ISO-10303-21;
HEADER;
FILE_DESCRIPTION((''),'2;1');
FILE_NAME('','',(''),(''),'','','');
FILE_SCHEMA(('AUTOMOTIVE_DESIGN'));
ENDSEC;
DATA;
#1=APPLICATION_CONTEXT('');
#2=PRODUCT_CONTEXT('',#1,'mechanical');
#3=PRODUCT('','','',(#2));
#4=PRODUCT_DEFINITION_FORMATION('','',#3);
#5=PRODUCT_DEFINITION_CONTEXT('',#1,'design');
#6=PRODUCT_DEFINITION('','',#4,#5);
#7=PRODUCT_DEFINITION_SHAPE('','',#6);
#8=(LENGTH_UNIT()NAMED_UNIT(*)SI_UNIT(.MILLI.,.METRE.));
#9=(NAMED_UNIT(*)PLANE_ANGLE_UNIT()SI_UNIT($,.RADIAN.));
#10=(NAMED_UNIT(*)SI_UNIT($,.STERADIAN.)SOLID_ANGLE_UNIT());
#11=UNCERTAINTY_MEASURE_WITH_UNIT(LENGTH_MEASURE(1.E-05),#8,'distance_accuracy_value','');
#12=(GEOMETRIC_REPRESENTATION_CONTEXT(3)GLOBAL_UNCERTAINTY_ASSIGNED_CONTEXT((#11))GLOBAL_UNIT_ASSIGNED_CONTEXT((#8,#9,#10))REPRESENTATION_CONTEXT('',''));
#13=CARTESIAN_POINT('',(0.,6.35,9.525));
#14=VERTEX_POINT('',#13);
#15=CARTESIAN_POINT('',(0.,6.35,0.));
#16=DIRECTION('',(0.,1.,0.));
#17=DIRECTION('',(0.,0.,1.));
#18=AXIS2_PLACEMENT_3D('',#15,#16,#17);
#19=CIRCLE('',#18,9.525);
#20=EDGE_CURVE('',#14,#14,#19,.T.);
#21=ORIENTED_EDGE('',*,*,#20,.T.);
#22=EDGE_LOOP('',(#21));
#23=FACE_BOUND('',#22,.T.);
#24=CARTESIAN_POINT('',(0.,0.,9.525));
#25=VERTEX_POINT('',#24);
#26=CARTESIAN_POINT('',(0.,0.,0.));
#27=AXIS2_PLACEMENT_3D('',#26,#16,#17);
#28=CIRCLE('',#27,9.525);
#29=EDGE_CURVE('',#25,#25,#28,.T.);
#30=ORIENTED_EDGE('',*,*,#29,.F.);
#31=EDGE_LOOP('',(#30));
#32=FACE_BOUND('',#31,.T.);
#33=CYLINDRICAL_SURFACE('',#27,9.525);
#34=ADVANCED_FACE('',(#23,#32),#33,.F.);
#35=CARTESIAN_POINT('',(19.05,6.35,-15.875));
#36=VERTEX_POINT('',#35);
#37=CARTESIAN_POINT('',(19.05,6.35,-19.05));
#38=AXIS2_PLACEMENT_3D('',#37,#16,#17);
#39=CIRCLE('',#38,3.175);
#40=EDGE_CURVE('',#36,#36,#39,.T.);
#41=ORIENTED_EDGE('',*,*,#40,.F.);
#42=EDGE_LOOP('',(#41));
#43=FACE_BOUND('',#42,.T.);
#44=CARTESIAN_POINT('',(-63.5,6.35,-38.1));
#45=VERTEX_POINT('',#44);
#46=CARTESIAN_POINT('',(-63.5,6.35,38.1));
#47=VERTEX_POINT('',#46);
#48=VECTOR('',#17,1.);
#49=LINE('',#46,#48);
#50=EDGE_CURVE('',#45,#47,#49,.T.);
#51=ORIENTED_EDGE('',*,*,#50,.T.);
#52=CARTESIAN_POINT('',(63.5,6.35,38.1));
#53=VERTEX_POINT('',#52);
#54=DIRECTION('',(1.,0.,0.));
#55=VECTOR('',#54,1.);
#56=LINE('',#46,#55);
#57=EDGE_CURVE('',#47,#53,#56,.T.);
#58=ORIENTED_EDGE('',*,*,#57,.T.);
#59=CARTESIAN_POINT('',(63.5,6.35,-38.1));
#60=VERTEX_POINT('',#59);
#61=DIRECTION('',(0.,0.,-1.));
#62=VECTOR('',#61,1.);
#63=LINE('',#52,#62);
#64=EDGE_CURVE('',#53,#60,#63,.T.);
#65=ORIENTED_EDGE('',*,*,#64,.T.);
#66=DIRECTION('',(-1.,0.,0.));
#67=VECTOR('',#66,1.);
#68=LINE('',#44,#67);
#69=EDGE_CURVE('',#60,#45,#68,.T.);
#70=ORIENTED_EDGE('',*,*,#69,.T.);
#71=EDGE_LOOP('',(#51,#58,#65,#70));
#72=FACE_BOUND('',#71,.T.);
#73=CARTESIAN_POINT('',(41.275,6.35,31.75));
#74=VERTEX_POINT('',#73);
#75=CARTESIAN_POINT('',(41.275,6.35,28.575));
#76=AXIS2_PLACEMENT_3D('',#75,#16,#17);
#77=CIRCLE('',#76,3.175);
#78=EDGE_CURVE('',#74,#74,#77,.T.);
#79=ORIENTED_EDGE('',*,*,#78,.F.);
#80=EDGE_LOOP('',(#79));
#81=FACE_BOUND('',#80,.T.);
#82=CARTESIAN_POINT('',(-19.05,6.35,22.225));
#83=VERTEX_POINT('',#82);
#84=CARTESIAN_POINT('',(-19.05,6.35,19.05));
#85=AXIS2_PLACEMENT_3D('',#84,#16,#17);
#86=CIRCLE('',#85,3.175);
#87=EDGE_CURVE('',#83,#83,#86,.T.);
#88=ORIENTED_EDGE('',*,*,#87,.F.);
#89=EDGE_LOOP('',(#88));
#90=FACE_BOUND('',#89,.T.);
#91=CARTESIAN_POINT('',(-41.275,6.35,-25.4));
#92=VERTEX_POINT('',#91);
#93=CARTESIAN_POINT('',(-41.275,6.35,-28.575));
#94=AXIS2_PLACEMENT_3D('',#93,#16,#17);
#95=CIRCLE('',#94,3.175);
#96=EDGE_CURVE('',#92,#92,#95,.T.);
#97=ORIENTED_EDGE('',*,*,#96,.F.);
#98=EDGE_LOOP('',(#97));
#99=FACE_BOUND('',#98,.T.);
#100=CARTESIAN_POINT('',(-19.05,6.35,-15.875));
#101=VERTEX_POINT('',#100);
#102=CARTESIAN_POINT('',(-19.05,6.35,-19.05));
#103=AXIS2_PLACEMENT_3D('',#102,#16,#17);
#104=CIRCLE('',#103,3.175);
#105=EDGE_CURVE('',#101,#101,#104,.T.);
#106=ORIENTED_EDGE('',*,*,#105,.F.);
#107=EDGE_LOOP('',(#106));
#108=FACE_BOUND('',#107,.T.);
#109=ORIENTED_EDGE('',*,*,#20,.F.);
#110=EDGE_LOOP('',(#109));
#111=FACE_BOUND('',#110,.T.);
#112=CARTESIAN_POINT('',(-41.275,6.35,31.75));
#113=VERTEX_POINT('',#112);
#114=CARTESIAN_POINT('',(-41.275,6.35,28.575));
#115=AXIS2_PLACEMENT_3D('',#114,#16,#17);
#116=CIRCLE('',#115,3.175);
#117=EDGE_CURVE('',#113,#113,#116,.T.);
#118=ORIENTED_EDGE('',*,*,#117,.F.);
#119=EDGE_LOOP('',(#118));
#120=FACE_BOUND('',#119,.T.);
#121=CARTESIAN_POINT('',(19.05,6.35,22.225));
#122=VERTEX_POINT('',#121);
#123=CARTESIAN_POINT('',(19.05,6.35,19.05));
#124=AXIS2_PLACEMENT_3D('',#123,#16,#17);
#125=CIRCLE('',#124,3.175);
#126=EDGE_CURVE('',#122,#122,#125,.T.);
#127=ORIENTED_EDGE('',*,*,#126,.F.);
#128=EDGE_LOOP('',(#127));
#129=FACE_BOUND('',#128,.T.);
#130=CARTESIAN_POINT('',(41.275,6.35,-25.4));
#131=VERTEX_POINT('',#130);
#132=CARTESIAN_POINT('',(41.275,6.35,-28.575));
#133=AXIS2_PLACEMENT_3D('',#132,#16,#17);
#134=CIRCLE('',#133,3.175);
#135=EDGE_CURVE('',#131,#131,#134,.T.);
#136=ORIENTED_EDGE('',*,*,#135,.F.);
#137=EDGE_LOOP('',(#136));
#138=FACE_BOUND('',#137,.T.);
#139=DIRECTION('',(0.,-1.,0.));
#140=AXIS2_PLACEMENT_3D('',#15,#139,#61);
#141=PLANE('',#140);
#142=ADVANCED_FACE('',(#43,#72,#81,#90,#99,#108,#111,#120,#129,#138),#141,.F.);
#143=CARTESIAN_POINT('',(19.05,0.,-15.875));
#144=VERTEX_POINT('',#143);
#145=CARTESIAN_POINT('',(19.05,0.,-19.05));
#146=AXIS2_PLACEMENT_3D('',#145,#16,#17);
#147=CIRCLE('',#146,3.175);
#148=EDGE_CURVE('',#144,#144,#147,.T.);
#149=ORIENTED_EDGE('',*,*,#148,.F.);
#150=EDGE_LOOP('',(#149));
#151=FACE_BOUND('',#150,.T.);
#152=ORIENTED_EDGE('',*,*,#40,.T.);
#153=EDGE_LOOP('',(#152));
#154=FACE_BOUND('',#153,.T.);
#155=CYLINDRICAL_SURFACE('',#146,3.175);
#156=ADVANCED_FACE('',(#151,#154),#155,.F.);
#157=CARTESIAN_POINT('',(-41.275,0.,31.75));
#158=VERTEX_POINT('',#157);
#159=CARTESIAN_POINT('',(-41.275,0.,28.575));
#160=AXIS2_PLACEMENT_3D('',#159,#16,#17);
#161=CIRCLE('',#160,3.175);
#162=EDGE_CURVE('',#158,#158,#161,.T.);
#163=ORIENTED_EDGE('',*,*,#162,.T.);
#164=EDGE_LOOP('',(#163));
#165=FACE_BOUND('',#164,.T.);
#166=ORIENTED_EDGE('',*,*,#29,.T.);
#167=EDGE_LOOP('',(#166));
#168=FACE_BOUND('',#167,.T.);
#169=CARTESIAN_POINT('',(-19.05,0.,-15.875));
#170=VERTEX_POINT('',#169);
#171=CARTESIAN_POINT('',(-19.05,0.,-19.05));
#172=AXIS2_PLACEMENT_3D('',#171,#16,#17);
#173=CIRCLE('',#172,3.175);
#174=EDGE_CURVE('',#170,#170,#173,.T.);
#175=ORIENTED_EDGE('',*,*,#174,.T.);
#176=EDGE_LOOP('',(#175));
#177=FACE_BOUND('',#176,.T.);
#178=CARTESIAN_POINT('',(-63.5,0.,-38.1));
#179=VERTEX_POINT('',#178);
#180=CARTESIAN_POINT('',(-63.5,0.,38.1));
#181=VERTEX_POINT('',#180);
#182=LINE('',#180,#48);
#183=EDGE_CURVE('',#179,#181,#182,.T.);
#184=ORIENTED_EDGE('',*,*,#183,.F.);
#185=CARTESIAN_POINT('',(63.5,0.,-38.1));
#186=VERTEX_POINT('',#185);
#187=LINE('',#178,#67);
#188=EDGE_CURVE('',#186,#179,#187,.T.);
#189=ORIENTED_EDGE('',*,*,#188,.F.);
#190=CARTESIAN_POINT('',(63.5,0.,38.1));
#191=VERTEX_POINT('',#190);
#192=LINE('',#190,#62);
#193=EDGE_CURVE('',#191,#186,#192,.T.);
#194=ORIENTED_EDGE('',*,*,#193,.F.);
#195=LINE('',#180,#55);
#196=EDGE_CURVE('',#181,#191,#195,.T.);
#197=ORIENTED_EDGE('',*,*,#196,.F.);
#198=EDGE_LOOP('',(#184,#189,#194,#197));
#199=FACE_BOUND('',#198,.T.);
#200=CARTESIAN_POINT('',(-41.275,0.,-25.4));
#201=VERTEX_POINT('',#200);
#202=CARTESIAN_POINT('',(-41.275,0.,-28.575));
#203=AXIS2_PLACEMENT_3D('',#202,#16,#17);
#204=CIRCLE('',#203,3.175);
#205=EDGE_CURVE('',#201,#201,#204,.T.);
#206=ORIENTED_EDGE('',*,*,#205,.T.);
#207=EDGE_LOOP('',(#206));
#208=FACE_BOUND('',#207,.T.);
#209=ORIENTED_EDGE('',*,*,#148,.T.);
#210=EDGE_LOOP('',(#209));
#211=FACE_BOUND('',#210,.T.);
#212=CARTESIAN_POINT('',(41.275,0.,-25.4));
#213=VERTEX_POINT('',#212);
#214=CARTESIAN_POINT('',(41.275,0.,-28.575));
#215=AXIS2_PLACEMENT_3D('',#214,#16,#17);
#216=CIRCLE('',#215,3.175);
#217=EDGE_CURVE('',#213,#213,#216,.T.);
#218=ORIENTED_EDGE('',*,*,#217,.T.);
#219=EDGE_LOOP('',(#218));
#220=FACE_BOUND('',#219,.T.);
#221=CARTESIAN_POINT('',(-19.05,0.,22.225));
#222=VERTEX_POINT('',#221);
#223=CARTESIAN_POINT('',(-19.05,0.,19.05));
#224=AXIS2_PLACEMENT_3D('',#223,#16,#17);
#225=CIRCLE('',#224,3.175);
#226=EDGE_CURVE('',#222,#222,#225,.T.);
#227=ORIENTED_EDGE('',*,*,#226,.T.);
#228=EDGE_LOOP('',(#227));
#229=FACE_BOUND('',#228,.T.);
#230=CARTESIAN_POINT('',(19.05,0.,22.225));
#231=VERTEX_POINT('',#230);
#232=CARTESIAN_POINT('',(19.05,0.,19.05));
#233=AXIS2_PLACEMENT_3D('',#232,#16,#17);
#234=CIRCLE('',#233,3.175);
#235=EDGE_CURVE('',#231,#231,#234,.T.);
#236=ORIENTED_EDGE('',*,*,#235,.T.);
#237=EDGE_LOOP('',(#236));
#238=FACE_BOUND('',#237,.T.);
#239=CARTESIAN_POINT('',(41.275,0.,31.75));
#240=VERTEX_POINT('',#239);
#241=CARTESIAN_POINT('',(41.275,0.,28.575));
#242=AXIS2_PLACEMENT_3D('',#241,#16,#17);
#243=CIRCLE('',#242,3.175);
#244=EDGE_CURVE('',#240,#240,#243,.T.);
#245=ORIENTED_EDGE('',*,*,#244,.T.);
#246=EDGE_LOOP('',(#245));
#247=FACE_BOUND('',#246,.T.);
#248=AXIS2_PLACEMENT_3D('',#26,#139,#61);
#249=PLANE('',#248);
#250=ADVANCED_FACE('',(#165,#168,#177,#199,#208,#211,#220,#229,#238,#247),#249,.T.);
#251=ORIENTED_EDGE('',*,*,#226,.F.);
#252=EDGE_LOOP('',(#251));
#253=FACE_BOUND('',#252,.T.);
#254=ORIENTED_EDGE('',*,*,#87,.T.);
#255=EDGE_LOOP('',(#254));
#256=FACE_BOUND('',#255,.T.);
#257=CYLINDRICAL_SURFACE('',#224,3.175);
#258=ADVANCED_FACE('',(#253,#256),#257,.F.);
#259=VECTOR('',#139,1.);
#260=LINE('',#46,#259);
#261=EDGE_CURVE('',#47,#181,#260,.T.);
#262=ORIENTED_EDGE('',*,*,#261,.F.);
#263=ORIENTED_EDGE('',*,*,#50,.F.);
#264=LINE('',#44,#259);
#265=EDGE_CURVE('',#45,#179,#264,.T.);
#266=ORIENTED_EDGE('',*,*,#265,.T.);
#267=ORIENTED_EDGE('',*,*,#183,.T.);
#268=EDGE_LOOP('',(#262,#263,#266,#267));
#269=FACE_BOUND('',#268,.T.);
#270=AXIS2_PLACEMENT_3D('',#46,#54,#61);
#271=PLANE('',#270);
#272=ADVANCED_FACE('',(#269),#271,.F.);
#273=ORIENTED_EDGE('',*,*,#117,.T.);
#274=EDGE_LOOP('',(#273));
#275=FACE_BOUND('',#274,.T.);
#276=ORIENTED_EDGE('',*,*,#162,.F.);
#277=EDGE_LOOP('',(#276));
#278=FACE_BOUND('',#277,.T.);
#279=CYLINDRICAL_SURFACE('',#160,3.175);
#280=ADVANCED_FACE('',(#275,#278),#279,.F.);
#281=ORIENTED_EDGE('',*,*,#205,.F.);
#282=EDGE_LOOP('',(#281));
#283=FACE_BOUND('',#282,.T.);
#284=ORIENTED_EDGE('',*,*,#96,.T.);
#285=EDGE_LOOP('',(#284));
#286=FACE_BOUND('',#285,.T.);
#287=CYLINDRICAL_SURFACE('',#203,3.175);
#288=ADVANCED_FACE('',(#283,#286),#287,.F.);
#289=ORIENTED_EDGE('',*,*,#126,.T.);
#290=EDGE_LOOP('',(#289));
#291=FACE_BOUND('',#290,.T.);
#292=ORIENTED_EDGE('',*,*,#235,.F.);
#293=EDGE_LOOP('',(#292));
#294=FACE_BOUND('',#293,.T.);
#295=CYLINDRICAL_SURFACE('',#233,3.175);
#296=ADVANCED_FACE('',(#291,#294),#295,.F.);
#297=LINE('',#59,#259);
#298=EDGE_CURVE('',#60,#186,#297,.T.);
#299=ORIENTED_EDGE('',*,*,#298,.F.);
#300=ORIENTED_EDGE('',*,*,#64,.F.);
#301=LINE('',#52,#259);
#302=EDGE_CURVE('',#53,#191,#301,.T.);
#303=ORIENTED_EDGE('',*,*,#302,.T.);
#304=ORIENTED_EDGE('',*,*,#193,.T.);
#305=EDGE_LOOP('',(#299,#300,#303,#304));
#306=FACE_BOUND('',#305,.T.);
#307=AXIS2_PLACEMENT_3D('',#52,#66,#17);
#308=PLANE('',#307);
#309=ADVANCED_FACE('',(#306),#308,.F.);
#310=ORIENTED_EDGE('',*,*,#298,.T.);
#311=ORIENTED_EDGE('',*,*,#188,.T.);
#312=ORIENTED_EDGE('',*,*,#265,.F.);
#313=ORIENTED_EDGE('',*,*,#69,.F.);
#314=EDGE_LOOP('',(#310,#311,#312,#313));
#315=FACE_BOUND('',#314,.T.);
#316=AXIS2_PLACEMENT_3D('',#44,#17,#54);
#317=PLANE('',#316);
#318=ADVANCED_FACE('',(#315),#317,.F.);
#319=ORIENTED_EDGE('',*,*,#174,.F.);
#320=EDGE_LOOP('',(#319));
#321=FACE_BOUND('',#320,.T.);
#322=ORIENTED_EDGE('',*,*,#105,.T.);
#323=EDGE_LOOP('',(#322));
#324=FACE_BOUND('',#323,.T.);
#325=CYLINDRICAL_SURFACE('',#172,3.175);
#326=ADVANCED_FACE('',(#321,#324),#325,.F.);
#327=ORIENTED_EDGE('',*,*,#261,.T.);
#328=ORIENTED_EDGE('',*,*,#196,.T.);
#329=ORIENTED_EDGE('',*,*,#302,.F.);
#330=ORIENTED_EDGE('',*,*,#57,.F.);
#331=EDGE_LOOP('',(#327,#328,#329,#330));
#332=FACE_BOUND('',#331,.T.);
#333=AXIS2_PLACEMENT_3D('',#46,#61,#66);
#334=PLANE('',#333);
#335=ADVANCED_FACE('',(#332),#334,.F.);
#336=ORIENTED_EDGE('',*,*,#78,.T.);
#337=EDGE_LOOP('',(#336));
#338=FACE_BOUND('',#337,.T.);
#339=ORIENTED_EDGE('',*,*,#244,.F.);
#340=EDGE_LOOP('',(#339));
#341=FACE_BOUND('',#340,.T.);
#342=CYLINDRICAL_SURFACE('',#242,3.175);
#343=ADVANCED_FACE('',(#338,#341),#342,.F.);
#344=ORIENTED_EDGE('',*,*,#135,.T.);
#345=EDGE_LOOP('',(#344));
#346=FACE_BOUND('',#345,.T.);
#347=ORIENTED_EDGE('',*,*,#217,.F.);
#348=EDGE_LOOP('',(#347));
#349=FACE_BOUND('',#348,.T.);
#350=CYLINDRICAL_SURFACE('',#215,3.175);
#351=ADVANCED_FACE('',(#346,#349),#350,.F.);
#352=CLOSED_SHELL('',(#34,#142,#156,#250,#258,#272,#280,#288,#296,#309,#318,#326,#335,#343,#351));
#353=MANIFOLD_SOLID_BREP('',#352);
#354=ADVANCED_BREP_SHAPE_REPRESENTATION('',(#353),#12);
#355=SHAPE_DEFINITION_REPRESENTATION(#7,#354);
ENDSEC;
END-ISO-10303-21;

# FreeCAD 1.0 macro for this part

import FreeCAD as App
import Part
import Sketcher
from FreeCAD import Vector
Q = App.Units.Quantity


def add_polygon(sketch, points):
    """Adds a closed chain of lines whose ends are joined by coincident constraints."""
    first, n = sketch.GeometryCount, len(points)
    for a, b in zip(points, points[1:] + points[:1]):
        sketch.addGeometry(Part.LineSegment(App.Vector(*a, 0), App.Vector(*b, 0)), False)
    for i in range(n):
        sketch.addConstraint(Sketcher.Constraint("Coincident", first + i, 2, first + (i + 1) % n, 1))

doc = App.newDocument("Part")
params = doc.addObject("Spreadsheet::Sheet", "Params")
for row, (alias, value) in enumerate([
    ("sketch1_width", "5 in"),
    ("sketch1_height", "3 in"),
    ("pad1_length", "0.25 in"),
    ("sketch2_diameter", "0.25 in"),
    ("sketch2_diameter2", "0.75 in"),
], start=1):
    params.set(f"A{row}", alias)
    params.set(f"B{row}", "=" + value)
    params.setAlias(f"B{row}", alias)

body = doc.addObject("PartDesign::Body", "Body")

# Sketch on XZ plane
sketch1 = body.newObject("Sketcher::SketchObject", "Sketch")
sketch1.AttachmentSupport = (doc.getObject("XZ_Plane"), [""])
sketch1.MapMode = "FlatFace"
add_polygon(sketch1, [(-64, -38), (-64, 38), (64, 38), (64, -38)])  # lines 0-3
sketch1.addConstraint(Sketcher.Constraint("Vertical", 0))
sketch1.addConstraint(Sketcher.Constraint("Horizontal", 1))
sketch1.addConstraint(Sketcher.Constraint("Vertical", 2))
sketch1.addConstraint(Sketcher.Constraint("Horizontal", 3))
sketch1.addConstraint(Sketcher.Constraint("Symmetric", 0, 2, 2, 2, -1, 1))
sketch1.addConstraint(Sketcher.Constraint("DistanceX", 1, 1, 1, 2, Q("5 in")))
sketch1.addConstraint(Sketcher.Constraint("DistanceY", 0, 1, 0, 2, Q("3 in")))
sketch1.setExpression("Constraints[9]", "Params.sketch1_width")
sketch1.setExpression("Constraints[10]", "Params.sketch1_height")
pad1 = body.newObject("PartDesign::Pad", "Pad")
pad1.Profile = sketch1
pad1.setExpression("Length", "Params.pad1_length")
pad1.Reversed = True

# Sketch on XZ plane
sketch2 = body.newObject("Sketcher::SketchObject", "Sketch001")
sketch2.AttachmentSupport = (doc.getObject("XZ_Plane"), [""])
sketch2.MapMode = "FlatFace"
sketch2.AttachmentOffset = App.Placement(Vector(0, 0, -0.25 * 25.4), App.Rotation())
sketch2.addGeometry(Part.Circle(Vector(-41.3, -28.6, 0), Vector(0, 0, 1), 3.2), False)
sketch2.addGeometry(Part.Circle(Vector(41.3, -28.6, 0), Vector(0, 0, 1), 3.2), False)
sketch2.addGeometry(Part.Circle(Vector(41.3, 28.6, 0), Vector(0, 0, 1), 3.2), False)
sketch2.addGeometry(Part.Circle(Vector(-41.3, 28.6, 0), Vector(0, 0, 1), 3.2), False)
sketch2.addGeometry(Part.Circle(Vector(-19.1, -19.1, 0), Vector(0, 0, 1), 3.2), False)
sketch2.addGeometry(Part.Circle(Vector(19.1, -19.1, 0), Vector(0, 0, 1), 3.2), False)
sketch2.addGeometry(Part.Circle(Vector(19.1, 19.1, 0), Vector(0, 0, 1), 3.2), False)
sketch2.addGeometry(Part.Circle(Vector(-19.1, 19.1, 0), Vector(0, 0, 1), 3.2), False)
sketch2.addGeometry(Part.Circle(Vector(0, 0, 0), Vector(0, 0, 1), 9.5), False)
sketch2.addConstraint(Sketcher.Constraint("Coincident", 8, 3, -1, 1))
sketch2.addConstraint(Sketcher.Constraint("Equal", 0, 1))
sketch2.addConstraint(Sketcher.Constraint("Equal", 1, 2))
sketch2.addConstraint(Sketcher.Constraint("Equal", 2, 3))
sketch2.addConstraint(Sketcher.Constraint("Equal", 3, 4))
sketch2.addConstraint(Sketcher.Constraint("Equal", 4, 5))
sketch2.addConstraint(Sketcher.Constraint("Equal", 5, 6))
sketch2.addConstraint(Sketcher.Constraint("Equal", 6, 7))
sketch2.addConstraint(Sketcher.Constraint("Symmetric", 0, 3, 2, 3, -1, 1))
sketch2.addConstraint(Sketcher.Constraint("Symmetric", 1, 3, 3, 3, -1, 1))
sketch2.addConstraint(Sketcher.Constraint("Symmetric", 4, 3, 6, 3, -1, 1))
sketch2.addConstraint(Sketcher.Constraint("Symmetric", 5, 3, 7, 3, -1, 1))
sketch2.addConstraint(Sketcher.Constraint("Symmetric", 0, 3, 1, 3, -2))
sketch2.addConstraint(Sketcher.Constraint("Symmetric", 4, 3, 5, 3, -2))
sketch2.addConstraint(Sketcher.Constraint("Diameter", 0, Q("0.25 in")))
sketch2.addConstraint(Sketcher.Constraint("Diameter", 8, Q("0.75 in")))
sketch2.addConstraint(Sketcher.Constraint("DistanceX", 4, 3, 5, 3, Q("1.5 in")))
sketch2.addConstraint(Sketcher.Constraint("DistanceY", 5, 3, 6, 3, Q("1.5 in")))
sketch2.addConstraint(Sketcher.Constraint("DistanceX", 0, 3, 1, 3, Q("3.25 in")))
sketch2.addConstraint(Sketcher.Constraint("DistanceY", 1, 3, 2, 3, Q("2.25 in")))
sketch2.setExpression("Constraints[14]", "Params.sketch2_diameter")
sketch2.setExpression("Constraints[15]", "Params.sketch2_diameter2")
pocket1 = body.newObject("PartDesign::Pocket", "Pocket")
pocket1.Profile = sketch2
pocket1.Type = "ThroughAll"
pocket1.Reversed = True

doc.recompute()
